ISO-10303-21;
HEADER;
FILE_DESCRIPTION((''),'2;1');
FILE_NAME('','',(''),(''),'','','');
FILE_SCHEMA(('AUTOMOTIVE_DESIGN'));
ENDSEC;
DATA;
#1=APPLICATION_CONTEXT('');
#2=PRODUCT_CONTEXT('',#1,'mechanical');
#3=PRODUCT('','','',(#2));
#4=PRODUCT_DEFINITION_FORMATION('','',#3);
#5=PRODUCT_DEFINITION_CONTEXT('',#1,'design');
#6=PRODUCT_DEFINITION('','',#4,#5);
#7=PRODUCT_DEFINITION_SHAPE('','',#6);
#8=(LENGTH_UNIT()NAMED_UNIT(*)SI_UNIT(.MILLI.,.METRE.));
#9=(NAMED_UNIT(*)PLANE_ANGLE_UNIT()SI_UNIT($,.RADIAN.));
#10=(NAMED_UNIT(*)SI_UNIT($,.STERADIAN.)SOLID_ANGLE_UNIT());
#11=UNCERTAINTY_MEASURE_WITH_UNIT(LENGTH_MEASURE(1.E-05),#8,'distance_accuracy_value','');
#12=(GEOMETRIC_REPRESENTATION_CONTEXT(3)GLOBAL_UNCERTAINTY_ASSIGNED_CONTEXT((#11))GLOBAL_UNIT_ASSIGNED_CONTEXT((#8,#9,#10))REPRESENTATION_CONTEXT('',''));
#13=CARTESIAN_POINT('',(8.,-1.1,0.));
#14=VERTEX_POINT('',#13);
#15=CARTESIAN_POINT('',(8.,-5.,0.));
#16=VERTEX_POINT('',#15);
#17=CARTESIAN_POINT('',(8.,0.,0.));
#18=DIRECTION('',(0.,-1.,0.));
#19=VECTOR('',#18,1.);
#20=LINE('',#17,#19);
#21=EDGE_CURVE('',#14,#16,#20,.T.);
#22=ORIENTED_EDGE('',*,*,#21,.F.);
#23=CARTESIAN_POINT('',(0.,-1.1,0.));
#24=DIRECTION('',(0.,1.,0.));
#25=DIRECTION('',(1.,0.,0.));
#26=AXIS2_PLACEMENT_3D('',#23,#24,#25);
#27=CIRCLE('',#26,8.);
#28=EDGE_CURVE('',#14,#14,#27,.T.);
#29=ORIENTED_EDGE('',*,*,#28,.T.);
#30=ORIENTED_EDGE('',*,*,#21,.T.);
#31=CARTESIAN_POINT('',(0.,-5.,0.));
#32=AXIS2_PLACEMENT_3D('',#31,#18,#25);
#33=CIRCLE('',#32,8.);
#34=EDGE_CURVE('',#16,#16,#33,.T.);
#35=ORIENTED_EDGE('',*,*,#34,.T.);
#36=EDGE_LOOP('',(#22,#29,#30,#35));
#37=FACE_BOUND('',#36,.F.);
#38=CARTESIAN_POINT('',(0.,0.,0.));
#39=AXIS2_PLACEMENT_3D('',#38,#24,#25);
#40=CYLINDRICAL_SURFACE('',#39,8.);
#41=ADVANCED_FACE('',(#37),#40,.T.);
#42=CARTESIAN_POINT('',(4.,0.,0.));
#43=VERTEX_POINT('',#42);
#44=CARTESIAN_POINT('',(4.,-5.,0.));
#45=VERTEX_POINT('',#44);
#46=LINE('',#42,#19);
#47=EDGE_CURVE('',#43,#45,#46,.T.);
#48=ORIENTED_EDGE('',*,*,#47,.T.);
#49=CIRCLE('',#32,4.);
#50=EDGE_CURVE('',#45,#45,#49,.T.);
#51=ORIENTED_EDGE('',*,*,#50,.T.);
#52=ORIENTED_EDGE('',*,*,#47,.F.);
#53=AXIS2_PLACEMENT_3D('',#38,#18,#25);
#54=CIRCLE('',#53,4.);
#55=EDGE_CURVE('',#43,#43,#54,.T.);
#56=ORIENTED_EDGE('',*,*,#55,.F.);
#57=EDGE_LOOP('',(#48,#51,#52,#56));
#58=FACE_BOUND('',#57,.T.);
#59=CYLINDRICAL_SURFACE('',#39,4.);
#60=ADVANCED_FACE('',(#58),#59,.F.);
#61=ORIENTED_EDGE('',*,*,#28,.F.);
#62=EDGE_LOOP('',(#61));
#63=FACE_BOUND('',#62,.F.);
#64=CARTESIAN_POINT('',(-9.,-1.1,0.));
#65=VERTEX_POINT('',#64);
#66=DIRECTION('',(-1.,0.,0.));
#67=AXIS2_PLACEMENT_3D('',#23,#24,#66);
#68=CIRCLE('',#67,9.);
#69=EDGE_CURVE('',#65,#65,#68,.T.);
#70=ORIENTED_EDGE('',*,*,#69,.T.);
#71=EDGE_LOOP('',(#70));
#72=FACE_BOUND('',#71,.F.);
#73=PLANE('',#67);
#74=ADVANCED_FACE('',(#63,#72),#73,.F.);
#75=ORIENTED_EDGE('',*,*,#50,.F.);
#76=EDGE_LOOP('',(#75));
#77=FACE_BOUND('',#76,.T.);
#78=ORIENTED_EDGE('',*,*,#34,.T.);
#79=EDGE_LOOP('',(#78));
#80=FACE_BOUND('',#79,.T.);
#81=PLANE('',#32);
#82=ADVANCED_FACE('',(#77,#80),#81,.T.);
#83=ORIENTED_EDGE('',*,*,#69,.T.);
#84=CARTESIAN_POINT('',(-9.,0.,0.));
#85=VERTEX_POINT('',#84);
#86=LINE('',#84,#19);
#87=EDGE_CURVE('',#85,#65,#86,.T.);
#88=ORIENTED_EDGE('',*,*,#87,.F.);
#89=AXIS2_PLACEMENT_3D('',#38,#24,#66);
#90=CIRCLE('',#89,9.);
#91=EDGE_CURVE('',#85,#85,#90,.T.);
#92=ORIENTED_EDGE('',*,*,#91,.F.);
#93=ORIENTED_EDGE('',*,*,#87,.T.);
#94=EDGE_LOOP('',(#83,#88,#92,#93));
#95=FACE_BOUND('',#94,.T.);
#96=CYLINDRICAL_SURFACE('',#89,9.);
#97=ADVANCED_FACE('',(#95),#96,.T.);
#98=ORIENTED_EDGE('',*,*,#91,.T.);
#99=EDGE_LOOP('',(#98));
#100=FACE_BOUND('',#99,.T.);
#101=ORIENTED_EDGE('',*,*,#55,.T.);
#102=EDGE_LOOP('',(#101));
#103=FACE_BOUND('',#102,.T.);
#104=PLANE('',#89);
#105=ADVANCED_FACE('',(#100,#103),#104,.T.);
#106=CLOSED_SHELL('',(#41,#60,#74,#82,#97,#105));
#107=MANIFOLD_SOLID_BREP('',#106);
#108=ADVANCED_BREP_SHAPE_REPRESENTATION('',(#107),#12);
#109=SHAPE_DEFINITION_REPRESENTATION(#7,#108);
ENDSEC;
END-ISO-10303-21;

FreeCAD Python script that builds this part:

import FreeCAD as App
import Part
import Sketcher

doc = App.newDocument("Part")
body = doc.addObject("PartDesign::Body", "Body")

sketch1 = doc.addObject("Sketcher::SketchObject", "Sketch")
body.addObject(sketch1)
sketch1.AttachmentSupport = (doc.XZ_Plane, [""])
sketch1.MapMode = "FlatFace"
sketch1.addGeometry([
    Part.Circle(App.Vector(0, 0, 0), App.Vector(0, 0, 1), 8),
    Part.Circle(App.Vector(0, 0, 0), App.Vector(0, 0, 1), 4),
], False)
sketch1.addConstraint([
    Sketcher.Constraint("Coincident", 0, 3, -1, 1),
    Sketcher.Constraint("Coincident", 1, 3, -1, 1),
    Sketcher.Constraint("Diameter", 0, 16.0),
    Sketcher.Constraint("Diameter", 1, 8.0),
])
pad1 = doc.addObject("PartDesign::Pad", "Pad")
body.addObject(pad1)
pad1.Profile = sketch1
pad1.Length = 5

sketch2 = doc.addObject("Sketcher::SketchObject", "Sketch001")
body.addObject(sketch2)
sketch2.AttachmentSupport = (doc.XZ_Plane, [""])
sketch2.MapMode = "FlatFace"
sketch2.addGeometry([
    Part.Circle(App.Vector(0, 0, 0), App.Vector(0, 0, 1), 9),
    Part.Circle(App.Vector(0, 0, 0), App.Vector(0, 0, 1), 8),
], False)
sketch2.addConstraint([
    Sketcher.Constraint("Coincident", 0, 3, -1, 1),
    Sketcher.Constraint("Coincident", 1, 3, -1, 1),
    Sketcher.Constraint("Diameter", 0, 18.0),
    Sketcher.Constraint("Diameter", 1, 16.0),
])
pad2 = doc.addObject("PartDesign::Pad", "Pad001")
body.addObject(pad2)
pad2.Profile = sketch2
pad2.Length = 1.1

doc.recompute()
